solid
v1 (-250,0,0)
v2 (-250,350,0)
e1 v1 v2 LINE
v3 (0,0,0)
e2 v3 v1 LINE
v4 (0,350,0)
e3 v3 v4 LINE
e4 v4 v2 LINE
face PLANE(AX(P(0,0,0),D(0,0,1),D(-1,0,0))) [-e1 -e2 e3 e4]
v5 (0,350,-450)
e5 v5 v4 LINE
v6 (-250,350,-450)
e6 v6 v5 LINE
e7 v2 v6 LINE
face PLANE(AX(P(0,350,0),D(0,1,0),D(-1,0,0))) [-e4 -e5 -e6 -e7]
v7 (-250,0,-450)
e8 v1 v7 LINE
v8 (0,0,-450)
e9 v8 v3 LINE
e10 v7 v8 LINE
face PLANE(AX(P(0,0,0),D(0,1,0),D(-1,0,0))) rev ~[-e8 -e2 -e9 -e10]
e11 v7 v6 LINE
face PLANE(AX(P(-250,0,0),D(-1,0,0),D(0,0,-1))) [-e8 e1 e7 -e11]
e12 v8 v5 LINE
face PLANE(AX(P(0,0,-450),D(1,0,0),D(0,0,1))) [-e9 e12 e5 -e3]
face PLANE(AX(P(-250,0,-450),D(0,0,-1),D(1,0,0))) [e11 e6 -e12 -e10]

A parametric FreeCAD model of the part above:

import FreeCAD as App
import Part
import Sketcher
from FreeCAD import Vector
Q = App.Units.Quantity

doc = App.newDocument("Part")
body = doc.addObject("PartDesign::Body", "Body")

# Sketch on XZ plane
sketch1 = body.newObject("Sketcher::SketchObject", "Sketch")
sketch1.AttachmentSupport = (doc.getObject("XZ_Plane"), [""])
sketch1.MapMode = "FlatFace"
sketch1.addGeometry([
    Part.LineSegment(Vector(-250, 0, 0), Vector(0, 0, 0)),
    Part.LineSegment(Vector(0, 0, 0), Vector(0, -450, 0)),
    Part.LineSegment(Vector(0, -450, 0), Vector(-250, -450, 0)),
    Part.LineSegment(Vector(-250, -450, 0), Vector(-250, 0, 0)),
], False)
sketch1.addConstraint([
    Sketcher.Constraint("Coincident", 0, 2, 1, 1),
    Sketcher.Constraint("Coincident", 1, 2, 2, 1),
    Sketcher.Constraint("Coincident", 2, 2, 3, 1),
    Sketcher.Constraint("Coincident", 3, 2, 0, 1),
    Sketcher.Constraint("Horizontal", 0),
    Sketcher.Constraint("Vertical", 1),
    Sketcher.Constraint("Horizontal", 2),
    Sketcher.Constraint("Vertical", 3),
    Sketcher.Constraint("Coincident", 0, 2, -1, 1),
    Sketcher.Constraint("DistanceX", 0, 1, 0, 2, Q("250 mm")),
    Sketcher.Constraint("DistanceY", 1, 2, 1, 1, Q("450 mm")),
])
pad1 = body.newObject("PartDesign::Pad", "Pad")
pad1.Profile = sketch1
pad1.Length = 350
pad1.Reversed = True

doc.recompute()
